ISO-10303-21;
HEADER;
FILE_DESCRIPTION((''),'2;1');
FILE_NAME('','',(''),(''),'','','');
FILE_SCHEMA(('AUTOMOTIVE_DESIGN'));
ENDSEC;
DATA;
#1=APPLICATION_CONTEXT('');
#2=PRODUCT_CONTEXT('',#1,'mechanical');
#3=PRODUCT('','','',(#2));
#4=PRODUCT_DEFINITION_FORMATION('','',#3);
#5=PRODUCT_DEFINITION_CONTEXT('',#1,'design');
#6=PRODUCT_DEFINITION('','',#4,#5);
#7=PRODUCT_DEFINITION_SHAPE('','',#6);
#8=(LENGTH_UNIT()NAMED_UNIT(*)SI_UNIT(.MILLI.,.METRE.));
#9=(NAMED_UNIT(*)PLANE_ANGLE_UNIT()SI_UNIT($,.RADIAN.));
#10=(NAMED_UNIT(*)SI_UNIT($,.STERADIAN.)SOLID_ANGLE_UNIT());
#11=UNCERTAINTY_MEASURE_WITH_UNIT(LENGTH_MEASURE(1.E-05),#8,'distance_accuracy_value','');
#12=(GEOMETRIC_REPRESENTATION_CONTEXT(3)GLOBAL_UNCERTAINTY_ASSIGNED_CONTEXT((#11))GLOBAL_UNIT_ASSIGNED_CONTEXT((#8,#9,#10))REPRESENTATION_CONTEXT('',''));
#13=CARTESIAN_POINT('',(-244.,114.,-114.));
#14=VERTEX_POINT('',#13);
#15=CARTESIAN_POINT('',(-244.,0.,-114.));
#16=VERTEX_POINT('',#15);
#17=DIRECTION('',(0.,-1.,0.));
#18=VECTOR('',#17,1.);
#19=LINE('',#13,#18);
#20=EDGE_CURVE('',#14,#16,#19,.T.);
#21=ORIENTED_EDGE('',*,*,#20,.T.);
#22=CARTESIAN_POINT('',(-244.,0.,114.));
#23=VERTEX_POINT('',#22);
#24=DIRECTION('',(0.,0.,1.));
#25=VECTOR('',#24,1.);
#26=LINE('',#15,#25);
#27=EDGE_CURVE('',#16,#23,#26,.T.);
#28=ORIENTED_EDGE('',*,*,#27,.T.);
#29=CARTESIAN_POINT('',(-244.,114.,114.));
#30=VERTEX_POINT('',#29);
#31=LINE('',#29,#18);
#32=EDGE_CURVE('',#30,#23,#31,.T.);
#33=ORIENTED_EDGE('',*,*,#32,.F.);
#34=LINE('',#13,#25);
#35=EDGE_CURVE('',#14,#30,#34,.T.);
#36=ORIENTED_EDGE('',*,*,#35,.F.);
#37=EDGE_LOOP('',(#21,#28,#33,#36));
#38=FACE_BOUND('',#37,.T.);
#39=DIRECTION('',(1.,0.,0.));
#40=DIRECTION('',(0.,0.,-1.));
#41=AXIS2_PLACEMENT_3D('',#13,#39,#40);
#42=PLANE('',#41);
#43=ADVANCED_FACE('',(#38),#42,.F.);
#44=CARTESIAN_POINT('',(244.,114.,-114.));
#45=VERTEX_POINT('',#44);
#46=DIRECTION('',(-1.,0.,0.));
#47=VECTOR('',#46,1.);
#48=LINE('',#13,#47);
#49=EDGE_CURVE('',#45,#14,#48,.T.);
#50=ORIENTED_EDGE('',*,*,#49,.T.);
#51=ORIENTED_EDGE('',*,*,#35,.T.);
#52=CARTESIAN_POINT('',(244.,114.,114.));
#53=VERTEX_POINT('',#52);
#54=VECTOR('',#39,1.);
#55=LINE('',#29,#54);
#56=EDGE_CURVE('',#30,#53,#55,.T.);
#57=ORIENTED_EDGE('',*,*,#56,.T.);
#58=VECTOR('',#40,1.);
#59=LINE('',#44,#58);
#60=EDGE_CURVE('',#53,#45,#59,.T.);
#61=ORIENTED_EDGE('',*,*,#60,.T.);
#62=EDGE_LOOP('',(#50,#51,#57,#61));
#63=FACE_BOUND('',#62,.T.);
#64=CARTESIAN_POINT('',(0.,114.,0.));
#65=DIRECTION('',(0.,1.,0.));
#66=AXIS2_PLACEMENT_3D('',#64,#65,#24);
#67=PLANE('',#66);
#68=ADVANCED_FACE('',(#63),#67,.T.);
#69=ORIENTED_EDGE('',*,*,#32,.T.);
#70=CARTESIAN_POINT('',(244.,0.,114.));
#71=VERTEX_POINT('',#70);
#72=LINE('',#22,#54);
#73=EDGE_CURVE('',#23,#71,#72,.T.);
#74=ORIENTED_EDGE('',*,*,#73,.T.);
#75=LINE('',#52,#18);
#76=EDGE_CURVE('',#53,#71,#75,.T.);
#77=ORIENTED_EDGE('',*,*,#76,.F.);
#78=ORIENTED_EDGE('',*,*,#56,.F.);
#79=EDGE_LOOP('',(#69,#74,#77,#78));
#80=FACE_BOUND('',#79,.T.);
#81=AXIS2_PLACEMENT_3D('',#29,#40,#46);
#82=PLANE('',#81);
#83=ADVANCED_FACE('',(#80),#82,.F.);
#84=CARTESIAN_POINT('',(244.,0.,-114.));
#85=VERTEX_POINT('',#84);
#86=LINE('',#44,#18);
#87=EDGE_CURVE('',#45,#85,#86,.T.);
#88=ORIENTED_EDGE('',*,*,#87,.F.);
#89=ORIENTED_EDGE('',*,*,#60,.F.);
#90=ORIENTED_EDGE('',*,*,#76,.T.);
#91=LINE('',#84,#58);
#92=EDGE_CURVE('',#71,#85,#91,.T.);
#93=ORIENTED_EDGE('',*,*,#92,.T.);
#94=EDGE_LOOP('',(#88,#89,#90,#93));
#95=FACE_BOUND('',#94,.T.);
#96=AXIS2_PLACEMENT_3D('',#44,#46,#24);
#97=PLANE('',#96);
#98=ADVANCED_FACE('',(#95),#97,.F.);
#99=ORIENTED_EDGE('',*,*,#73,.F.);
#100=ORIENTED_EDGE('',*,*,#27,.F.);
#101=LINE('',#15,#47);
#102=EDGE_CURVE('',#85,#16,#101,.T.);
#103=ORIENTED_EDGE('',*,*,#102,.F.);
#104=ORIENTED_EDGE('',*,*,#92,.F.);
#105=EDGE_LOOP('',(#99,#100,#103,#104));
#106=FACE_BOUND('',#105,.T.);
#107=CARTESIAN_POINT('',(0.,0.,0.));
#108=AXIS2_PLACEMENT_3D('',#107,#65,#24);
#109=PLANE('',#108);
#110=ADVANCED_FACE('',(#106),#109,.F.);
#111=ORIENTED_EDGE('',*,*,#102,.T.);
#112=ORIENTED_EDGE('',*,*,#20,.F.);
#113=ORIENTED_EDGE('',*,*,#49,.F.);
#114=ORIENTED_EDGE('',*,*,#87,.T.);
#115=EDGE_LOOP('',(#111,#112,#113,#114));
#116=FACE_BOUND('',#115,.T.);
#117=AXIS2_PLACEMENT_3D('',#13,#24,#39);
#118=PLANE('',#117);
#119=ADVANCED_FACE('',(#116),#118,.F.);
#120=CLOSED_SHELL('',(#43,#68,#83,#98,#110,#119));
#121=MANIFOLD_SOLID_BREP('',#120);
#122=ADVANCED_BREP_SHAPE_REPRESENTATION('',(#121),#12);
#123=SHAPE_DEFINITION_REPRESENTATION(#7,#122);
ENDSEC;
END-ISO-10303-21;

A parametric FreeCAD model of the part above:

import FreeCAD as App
import Part
import Sketcher
Q = App.Units.Quantity

doc = App.newDocument("Part")
body = doc.addObject("PartDesign::Body", "Body")

# Sketch on XZ plane
sketch1 = doc.addObject("Sketcher::SketchObject", "Sketch")
body.addObject(sketch1)
sketch1.AttachmentSupport = (doc.XZ_Plane, [""])
sketch1.MapMode = "FlatFace"
sketch1.addGeometry(Part.LineSegment(App.Vector(-244, -114, 0), App.Vector(-244, 114, 0)), False)
sketch1.addGeometry(Part.LineSegment(App.Vector(-244, 114, 0), App.Vector(244, 114, 0)), False)
sketch1.addGeometry(Part.LineSegment(App.Vector(244, 114, 0), App.Vector(244, -114, 0)), False)
sketch1.addGeometry(Part.LineSegment(App.Vector(244, -114, 0), App.Vector(-244, -114, 0)), False)
sketch1.addConstraint(Sketcher.Constraint("Coincident", 0, 2, 1, 1))
sketch1.addConstraint(Sketcher.Constraint("Coincident", 1, 2, 2, 1))
sketch1.addConstraint(Sketcher.Constraint("Coincident", 2, 2, 3, 1))
sketch1.addConstraint(Sketcher.Constraint("Coincident", 3, 2, 0, 1))
sketch1.addConstraint(Sketcher.Constraint("Vertical", 0))
sketch1.addConstraint(Sketcher.Constraint("Horizontal", 1))
sketch1.addConstraint(Sketcher.Constraint("Vertical", 2))
sketch1.addConstraint(Sketcher.Constraint("Horizontal", 3))
sketch1.addConstraint(Sketcher.Constraint("Symmetric", 0, 2, 2, 2, -1, 1))
sketch1.addConstraint(Sketcher.Constraint("DistanceX", 1, 1, 1, 2, Q("488 mm")))
sketch1.addConstraint(Sketcher.Constraint("DistanceY", 0, 1, 0, 2, Q("228 mm")))
pad1 = doc.addObject("PartDesign::Pad", "Pad")
body.addObject(pad1)
pad1.Profile = sketch1
pad1.Length = 114
pad1.Reversed = True

doc.recompute()
